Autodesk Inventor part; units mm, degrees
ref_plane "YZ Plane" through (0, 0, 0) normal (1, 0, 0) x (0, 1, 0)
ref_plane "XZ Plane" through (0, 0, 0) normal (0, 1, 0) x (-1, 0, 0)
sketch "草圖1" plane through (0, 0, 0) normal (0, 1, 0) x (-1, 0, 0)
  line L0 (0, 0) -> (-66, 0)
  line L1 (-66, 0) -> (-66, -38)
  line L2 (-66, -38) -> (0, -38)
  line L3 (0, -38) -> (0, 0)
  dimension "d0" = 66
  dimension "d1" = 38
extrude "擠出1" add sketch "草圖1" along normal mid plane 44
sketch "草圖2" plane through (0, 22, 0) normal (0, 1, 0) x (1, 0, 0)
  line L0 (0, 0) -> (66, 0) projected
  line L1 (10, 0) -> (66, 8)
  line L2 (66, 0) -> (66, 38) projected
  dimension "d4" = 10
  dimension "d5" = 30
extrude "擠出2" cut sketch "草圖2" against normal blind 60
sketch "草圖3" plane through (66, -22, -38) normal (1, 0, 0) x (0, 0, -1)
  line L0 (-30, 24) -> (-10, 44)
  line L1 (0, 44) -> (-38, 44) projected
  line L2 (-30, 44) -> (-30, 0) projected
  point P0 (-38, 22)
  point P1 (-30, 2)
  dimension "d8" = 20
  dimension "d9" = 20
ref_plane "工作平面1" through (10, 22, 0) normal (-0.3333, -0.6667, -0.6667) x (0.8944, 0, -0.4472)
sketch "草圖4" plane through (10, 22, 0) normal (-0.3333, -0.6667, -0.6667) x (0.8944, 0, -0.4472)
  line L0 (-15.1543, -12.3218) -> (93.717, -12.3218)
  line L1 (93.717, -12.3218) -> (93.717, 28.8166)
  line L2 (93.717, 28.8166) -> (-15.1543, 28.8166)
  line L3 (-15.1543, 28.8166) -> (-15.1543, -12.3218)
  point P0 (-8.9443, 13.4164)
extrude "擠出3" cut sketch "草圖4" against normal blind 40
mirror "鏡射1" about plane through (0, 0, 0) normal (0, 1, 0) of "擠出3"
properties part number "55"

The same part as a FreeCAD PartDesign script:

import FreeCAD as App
import Part
import Sketcher
from FreeCAD import Vector

doc = App.newDocument("Part")
body = doc.addObject("PartDesign::Body", "Body")

# Sketch on XZ plane
sketch1 = doc.addObject("Sketcher::SketchObject", "Sketch")
body.addObject(sketch1)
sketch1.AttachmentSupport = (doc.XZ_Plane, [""])
sketch1.MapMode = "FlatFace"
sketch1.addGeometry([
    Part.LineSegment(Vector(0, -38, 0), Vector(0, 0, 0)),
    Part.LineSegment(Vector(0, 0, 0), Vector(66, 0, 0)),
    Part.LineSegment(Vector(66, 0, 0), Vector(66, -38, 0)),
    Part.LineSegment(Vector(66, -38, 0), Vector(0, -38, 0)),
], False)
sketch1.addConstraint([
    Sketcher.Constraint("Coincident", 0, 2, 1, 1),
    Sketcher.Constraint("Coincident", 1, 2, 2, 1),
    Sketcher.Constraint("Coincident", 2, 2, 3, 1),
    Sketcher.Constraint("Coincident", 3, 2, 0, 1),
    Sketcher.Constraint("Vertical", 0),
    Sketcher.Constraint("Horizontal", 1),
    Sketcher.Constraint("Vertical", 2),
    Sketcher.Constraint("Horizontal", 3),
    Sketcher.Constraint("Coincident", 0, 2, -1, 1),
    Sketcher.Constraint("DistanceX", 1, 1, 1, 2, 66.0),
    Sketcher.Constraint("DistanceY", 0, 1, 0, 2, 38.0),
])
pad1 = doc.addObject("PartDesign::Pad", "Pad")
body.addObject(pad1)
pad1.Profile = sketch1
pad1.Length = 44
pad1.Midplane = True

# Sketch on XZ plane
sketch2 = doc.addObject("Sketcher::SketchObject", "Sketch001")
body.addObject(sketch2)
sketch2.AttachmentSupport = (doc.XZ_Plane, [""])
sketch2.MapMode = "FlatFace"
sketch2.AttachmentOffset = App.Placement(Vector(0, 0, -22), App.Rotation())
sketch2.addGeometry([
    Part.LineSegment(Vector(66, -8, 0), Vector(10, 0, 0)),
    Part.LineSegment(Vector(10, 0, 0), Vector(66, 0, 0)),
    Part.LineSegment(Vector(66, 0, 0), Vector(66, -8, 0)),
], False)
sketch2.addConstraint([
    Sketcher.Constraint("Coincident", 0, 2, 1, 1),
    Sketcher.Constraint("Coincident", 1, 2, 2, 1),
    Sketcher.Constraint("Coincident", 2, 2, 0, 1),
    Sketcher.Constraint("Horizontal", 1),
    Sketcher.Constraint("Vertical", 2),
    Sketcher.Constraint("PointOnObject", 0, 2, -1),
    Sketcher.Constraint("DistanceX", -1, 1, 0, 2, 10.0),
    Sketcher.Constraint("DistanceX", 1, 1, 1, 2, 56.0),
    Sketcher.Constraint("DistanceY", 2, 2, 2, 1, 8.0),
])
pocket1 = doc.addObject("PartDesign::Pocket", "Pocket")
body.addObject(pocket1)
pocket1.Profile = sketch2
pocket1.Length = 60
pocket1.Reversed = True

# Sketch on an angled plane
sketch3 = doc.addObject("Sketcher::SketchObject", "Sketch002")
body.addObject(sketch3)
sketch3.Placement = App.Placement(Vector(10, 22, 0), App.Rotation(Vector(0.894442097, 0.000029814, -0.447183782), Vector(0.298147366, -0.745346055, 0.596294732), Vector(-0.33328889, -0.666677777, -0.666677777), "ZXY"))
sketch3.addGeometry([
    Part.LineSegment(Vector(-15.1543, 28.8166, 0), Vector(-15.1543, -12.3218, 0)),
    Part.LineSegment(Vector(-15.1543, -12.3218, 0), Vector(93.717, -12.3218, 0)),
    Part.LineSegment(Vector(93.717, -12.3218, 0), Vector(93.717, 28.8166, 0)),
    Part.LineSegment(Vector(93.717, 28.8166, 0), Vector(-15.1543, 28.8166, 0)),
], False)
sketch3.addConstraint([
    Sketcher.Constraint("Coincident", 0, 2, 1, 1),
    Sketcher.Constraint("Coincident", 1, 2, 2, 1),
    Sketcher.Constraint("Coincident", 2, 2, 3, 1),
    Sketcher.Constraint("Coincident", 3, 2, 0, 1),
    Sketcher.Constraint("Vertical", 0),
    Sketcher.Constraint("Horizontal", 1),
    Sketcher.Constraint("Vertical", 2),
    Sketcher.Constraint("Horizontal", 3),
    Sketcher.Constraint("DistanceX", 1, 1, 1, 2, 108.8713),
    Sketcher.Constraint("DistanceY", 0, 2, 0, 1, 41.1384),
    Sketcher.Constraint("DistanceX", -1, 1, 1, 2, 93.717),
    Sketcher.Constraint("DistanceY", 0, 2, -1, 1, 12.3218),
])
pocket2 = doc.addObject("PartDesign::Pocket", "Pocket001")
body.addObject(pocket2)
pocket2.Profile = sketch3
pocket2.Length = 40
doc.recompute()

mirrored = doc.addObject("PartDesign::Mirrored", "Mirrored")
body.addObject(mirrored)
mirrored.Originals = [pocket2]
mirrored.MirrorPlane = (doc.XZ_Plane, [""])
body.Tip = mirrored

doc.recompute()
